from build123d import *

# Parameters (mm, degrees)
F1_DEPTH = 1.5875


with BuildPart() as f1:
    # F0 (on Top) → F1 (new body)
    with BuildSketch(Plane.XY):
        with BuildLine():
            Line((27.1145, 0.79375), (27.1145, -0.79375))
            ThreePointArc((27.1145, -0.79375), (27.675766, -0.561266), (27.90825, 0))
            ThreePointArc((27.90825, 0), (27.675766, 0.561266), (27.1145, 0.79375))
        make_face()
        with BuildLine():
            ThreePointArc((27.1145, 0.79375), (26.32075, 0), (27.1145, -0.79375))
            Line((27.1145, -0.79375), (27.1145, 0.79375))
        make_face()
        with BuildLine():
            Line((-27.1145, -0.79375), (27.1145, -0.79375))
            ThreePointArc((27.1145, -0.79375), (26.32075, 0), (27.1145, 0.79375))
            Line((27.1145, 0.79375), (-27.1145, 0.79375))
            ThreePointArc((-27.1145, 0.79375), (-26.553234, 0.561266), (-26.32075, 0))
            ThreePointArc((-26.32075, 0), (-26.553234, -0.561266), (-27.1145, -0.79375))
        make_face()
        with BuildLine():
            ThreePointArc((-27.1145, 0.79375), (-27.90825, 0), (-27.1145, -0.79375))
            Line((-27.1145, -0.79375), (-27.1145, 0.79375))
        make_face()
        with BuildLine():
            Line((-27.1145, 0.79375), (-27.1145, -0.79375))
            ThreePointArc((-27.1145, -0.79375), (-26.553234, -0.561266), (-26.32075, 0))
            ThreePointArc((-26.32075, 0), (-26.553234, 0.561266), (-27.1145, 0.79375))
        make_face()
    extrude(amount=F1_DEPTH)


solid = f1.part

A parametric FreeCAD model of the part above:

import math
import FreeCAD as App
import Part
import Sketcher
Q = App.Units.Quantity

doc = App.newDocument("Part")
body = doc.addObject("PartDesign::Body", "Body")

sketch1 = doc.addObject("Sketcher::SketchObject", "Sketch")
body.addObject(sketch1)
sketch1.AttachmentSupport = (doc.XY_Plane, [""])
sketch1.MapMode = "FlatFace"
sketch1.addGeometry([
    Part.ArcOfCircle(Part.Circle(App.Vector(27.1, 0, 0), App.Vector(0, 0, 1), 0.8), math.radians(-90), math.radians(0)),
    Part.ArcOfCircle(Part.Circle(App.Vector(27.1, 0, 0), App.Vector(0, 0, 1), 0.8), math.radians(0), math.radians(90)),
    Part.LineSegment(App.Vector(27.1, 0.8, 0), App.Vector(-27.1, 0.8, 0)),
    Part.ArcOfCircle(Part.Circle(App.Vector(-27.1, 0, 0), App.Vector(0, 0, 1), 0.8), math.radians(90), math.radians(270)),
    Part.LineSegment(App.Vector(-27.1, -0.8, 0), App.Vector(27.1, -0.8, 0)),
], False)
sketch1.addConstraint([
    Sketcher.Constraint("Tangent", 0, 2, 1, 1),
    Sketcher.Constraint("Tangent", 1, 2, 2, 1),
    Sketcher.Constraint("Tangent", 2, 2, 3, 1),
    Sketcher.Constraint("Tangent", 3, 2, 4, 1),
    Sketcher.Constraint("Tangent", 4, 2, 0, 1),
    Sketcher.Constraint("Horizontal", 2),
    Sketcher.Constraint("Horizontal", 4),
    Sketcher.Constraint("Equal", 0, 1),
    Sketcher.Constraint("Symmetric", 0, 3, 3, 3, -1, 1),
    Sketcher.Constraint("PointOnObject", 0, 2, -1),
    Sketcher.Constraint("Radius", 0, Q("0.03125 in")),
    Sketcher.Constraint("DistanceX", 2, 2, 2, 1, Q("2.135 in")),
])
pad1 = doc.addObject("PartDesign::Pad", "Pad")
body.addObject(pad1)
pad1.Profile = sketch1
pad1.Length = Q("0.0625 in")

doc.recompute()
